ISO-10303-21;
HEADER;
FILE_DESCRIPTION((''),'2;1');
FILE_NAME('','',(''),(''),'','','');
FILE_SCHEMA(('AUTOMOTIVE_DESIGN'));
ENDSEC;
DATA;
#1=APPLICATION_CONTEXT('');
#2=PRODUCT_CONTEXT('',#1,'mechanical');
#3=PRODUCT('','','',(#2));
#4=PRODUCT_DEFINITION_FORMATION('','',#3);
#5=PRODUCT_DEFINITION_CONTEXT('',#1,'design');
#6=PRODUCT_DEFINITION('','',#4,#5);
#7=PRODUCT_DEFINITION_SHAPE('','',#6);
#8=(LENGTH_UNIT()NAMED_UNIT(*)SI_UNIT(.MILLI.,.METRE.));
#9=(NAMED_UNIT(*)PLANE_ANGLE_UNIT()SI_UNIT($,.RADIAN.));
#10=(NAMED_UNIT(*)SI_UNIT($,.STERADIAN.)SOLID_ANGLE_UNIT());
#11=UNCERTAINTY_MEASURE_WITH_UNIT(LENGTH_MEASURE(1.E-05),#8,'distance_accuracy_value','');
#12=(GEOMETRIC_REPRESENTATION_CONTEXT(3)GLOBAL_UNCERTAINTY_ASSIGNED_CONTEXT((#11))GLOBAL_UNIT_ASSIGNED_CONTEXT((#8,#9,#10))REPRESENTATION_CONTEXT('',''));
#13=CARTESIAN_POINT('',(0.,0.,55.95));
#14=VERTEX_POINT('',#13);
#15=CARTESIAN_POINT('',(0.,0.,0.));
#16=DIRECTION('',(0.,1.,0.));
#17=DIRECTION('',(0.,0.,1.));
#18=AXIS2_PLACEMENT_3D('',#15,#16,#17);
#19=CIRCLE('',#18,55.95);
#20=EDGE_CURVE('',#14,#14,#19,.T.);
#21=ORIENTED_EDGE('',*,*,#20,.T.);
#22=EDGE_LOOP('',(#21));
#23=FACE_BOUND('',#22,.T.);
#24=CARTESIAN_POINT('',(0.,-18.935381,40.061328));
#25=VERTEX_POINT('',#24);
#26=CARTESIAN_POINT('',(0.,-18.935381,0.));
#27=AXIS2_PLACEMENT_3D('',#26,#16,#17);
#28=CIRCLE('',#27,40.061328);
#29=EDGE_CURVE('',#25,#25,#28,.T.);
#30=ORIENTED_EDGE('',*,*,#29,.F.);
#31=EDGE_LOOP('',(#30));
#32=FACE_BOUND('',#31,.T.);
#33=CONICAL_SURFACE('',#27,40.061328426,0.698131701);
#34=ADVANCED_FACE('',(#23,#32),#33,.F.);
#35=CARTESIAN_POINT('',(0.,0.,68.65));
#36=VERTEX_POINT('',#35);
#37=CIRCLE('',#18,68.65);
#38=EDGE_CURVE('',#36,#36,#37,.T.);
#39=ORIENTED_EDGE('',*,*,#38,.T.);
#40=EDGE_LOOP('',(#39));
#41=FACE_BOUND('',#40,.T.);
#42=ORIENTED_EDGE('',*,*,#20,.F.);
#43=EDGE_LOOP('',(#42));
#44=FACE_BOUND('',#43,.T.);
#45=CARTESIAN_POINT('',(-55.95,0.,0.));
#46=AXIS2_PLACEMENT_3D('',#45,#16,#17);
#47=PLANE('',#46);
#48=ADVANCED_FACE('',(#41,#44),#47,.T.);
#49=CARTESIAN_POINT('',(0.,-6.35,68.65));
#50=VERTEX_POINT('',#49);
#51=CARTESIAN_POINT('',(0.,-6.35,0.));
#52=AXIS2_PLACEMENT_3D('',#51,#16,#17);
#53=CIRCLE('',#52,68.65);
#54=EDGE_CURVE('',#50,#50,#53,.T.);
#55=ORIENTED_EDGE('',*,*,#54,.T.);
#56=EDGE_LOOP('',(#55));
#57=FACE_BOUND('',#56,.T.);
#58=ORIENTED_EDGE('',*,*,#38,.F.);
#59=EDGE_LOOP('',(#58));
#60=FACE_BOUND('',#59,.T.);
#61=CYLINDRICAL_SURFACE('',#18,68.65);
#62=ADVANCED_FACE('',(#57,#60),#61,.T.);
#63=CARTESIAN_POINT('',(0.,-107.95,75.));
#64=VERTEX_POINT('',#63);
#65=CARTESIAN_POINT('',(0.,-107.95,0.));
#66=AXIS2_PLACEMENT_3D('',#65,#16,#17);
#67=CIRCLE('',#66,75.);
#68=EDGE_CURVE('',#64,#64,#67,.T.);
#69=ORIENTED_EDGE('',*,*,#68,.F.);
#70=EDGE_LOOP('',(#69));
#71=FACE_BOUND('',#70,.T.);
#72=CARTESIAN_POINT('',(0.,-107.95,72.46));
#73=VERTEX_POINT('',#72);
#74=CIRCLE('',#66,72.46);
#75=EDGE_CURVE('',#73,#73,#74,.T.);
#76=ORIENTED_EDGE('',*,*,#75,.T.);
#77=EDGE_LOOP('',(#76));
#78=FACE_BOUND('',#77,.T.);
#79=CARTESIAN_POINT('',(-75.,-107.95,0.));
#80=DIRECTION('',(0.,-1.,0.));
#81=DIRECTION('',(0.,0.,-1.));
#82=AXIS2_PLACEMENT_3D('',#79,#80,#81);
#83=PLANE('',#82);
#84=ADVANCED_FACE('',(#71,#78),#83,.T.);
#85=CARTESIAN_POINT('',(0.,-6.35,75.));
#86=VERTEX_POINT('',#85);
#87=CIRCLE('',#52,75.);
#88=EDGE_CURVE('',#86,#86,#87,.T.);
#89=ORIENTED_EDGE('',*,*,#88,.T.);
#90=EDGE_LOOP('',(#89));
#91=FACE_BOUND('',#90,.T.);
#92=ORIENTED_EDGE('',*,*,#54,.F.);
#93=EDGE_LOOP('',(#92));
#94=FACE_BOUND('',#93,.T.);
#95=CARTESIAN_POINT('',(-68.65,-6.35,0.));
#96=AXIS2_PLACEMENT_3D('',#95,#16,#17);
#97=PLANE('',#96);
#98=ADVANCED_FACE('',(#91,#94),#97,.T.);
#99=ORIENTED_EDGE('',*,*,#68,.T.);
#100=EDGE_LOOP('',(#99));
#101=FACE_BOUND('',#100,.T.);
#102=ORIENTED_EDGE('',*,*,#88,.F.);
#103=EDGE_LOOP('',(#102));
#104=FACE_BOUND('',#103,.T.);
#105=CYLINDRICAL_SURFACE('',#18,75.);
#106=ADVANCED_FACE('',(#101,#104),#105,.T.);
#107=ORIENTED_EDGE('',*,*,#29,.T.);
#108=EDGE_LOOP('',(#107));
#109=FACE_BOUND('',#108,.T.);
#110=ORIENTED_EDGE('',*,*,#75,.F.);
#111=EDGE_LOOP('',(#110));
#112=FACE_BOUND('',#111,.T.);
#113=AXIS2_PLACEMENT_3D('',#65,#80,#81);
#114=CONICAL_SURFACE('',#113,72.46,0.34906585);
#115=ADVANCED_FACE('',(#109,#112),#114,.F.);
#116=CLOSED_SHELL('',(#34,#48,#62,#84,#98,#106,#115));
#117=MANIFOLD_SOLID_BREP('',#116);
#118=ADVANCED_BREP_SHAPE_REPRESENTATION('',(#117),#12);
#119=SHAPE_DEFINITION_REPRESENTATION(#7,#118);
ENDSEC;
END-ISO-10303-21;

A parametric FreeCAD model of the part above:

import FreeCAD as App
import Part
import Sketcher
Q = App.Units.Quantity

doc = App.newDocument("Part")
body = doc.addObject("PartDesign::Body", "Body")

# Sketch on XY plane
sketch1 = body.newObject("Sketcher::SketchObject", "Sketch")
sketch1.AttachmentSupport = (doc.getObject("XY_Plane"), [""])
sketch1.MapMode = "FlatFace"
sketch1.addGeometry(Part.LineSegment(App.Vector(-56, 0, 0), App.Vector(-68.7, 0, 0)), False)
sketch1.addGeometry(Part.LineSegment(App.Vector(-68.7, 0, 0), App.Vector(-68.7, -6.3, 0)), False)
sketch1.addGeometry(Part.LineSegment(App.Vector(-68.7, -6.3, 0), App.Vector(-75, -6.3, 0)), False)
sketch1.addGeometry(Part.LineSegment(App.Vector(-75, -6.3, 0), App.Vector(-75, -108, 0)), False)
sketch1.addGeometry(Part.LineSegment(App.Vector(-75, -108, 0), App.Vector(-72.5, -108, 0)), False)
sketch1.addGeometry(Part.LineSegment(App.Vector(-72.5, -108, 0), App.Vector(-40.1, -18.9, 0)), False)
sketch1.addGeometry(Part.LineSegment(App.Vector(-40.1, -18.9, 0), App.Vector(-56, 0, 0)), False)
sketch1.addConstraint(Sketcher.Constraint("Coincident", 0, 2, 1, 1))
sketch1.addConstraint(Sketcher.Constraint("Coincident", 1, 2, 2, 1))
sketch1.addConstraint(Sketcher.Constraint("Coincident", 2, 2, 3, 1))
sketch1.addConstraint(Sketcher.Constraint("Coincident", 3, 2, 4, 1))
sketch1.addConstraint(Sketcher.Constraint("Coincident", 4, 2, 5, 1))
sketch1.addConstraint(Sketcher.Constraint("Coincident", 5, 2, 6, 1))
sketch1.addConstraint(Sketcher.Constraint("Coincident", 6, 2, 0, 1))
sketch1.addConstraint(Sketcher.Constraint("Horizontal", 0))
sketch1.addConstraint(Sketcher.Constraint("Vertical", 1))
sketch1.addConstraint(Sketcher.Constraint("Horizontal", 2))
sketch1.addConstraint(Sketcher.Constraint("Vertical", 3))
sketch1.addConstraint(Sketcher.Constraint("Horizontal", 4))
sketch1.addConstraint(Sketcher.Constraint("PointOnObject", 0, 2, -1))
sketch1.addConstraint(Sketcher.Constraint("Equal", 2, 1))
sketch1.addConstraint(Sketcher.Constraint("DistanceY", 3, 2, 3, 1, Q("4 in")))
sketch1.addConstraint(Sketcher.Constraint("DistanceX", 0, 2, 0, 1, Q("0.5 in")))
sketch1.addConstraint(Sketcher.Constraint("DistanceX", 4, 1, 4, 2, Q("0.1 in")))
sketch1.addConstraint(Sketcher.Constraint("Angle", 5, Q("70 deg")))
sketch1.addConstraint(Sketcher.Constraint("Angle", 6, Q("130 deg")))
sketch1.addConstraint(Sketcher.Constraint("DistanceX", 2, 2, 2, 1, Q("0.25 in")))
sketch1.addConstraint(Sketcher.Constraint("DistanceX", 0, 2, -1, 1, 68.65))
revolution = body.newObject("PartDesign::Revolution", "Revolution")
revolution.Profile = sketch1
revolution.ReferenceAxis = (sketch1, ["V_Axis"])
revolution.Angle = 360

doc.recompute()
